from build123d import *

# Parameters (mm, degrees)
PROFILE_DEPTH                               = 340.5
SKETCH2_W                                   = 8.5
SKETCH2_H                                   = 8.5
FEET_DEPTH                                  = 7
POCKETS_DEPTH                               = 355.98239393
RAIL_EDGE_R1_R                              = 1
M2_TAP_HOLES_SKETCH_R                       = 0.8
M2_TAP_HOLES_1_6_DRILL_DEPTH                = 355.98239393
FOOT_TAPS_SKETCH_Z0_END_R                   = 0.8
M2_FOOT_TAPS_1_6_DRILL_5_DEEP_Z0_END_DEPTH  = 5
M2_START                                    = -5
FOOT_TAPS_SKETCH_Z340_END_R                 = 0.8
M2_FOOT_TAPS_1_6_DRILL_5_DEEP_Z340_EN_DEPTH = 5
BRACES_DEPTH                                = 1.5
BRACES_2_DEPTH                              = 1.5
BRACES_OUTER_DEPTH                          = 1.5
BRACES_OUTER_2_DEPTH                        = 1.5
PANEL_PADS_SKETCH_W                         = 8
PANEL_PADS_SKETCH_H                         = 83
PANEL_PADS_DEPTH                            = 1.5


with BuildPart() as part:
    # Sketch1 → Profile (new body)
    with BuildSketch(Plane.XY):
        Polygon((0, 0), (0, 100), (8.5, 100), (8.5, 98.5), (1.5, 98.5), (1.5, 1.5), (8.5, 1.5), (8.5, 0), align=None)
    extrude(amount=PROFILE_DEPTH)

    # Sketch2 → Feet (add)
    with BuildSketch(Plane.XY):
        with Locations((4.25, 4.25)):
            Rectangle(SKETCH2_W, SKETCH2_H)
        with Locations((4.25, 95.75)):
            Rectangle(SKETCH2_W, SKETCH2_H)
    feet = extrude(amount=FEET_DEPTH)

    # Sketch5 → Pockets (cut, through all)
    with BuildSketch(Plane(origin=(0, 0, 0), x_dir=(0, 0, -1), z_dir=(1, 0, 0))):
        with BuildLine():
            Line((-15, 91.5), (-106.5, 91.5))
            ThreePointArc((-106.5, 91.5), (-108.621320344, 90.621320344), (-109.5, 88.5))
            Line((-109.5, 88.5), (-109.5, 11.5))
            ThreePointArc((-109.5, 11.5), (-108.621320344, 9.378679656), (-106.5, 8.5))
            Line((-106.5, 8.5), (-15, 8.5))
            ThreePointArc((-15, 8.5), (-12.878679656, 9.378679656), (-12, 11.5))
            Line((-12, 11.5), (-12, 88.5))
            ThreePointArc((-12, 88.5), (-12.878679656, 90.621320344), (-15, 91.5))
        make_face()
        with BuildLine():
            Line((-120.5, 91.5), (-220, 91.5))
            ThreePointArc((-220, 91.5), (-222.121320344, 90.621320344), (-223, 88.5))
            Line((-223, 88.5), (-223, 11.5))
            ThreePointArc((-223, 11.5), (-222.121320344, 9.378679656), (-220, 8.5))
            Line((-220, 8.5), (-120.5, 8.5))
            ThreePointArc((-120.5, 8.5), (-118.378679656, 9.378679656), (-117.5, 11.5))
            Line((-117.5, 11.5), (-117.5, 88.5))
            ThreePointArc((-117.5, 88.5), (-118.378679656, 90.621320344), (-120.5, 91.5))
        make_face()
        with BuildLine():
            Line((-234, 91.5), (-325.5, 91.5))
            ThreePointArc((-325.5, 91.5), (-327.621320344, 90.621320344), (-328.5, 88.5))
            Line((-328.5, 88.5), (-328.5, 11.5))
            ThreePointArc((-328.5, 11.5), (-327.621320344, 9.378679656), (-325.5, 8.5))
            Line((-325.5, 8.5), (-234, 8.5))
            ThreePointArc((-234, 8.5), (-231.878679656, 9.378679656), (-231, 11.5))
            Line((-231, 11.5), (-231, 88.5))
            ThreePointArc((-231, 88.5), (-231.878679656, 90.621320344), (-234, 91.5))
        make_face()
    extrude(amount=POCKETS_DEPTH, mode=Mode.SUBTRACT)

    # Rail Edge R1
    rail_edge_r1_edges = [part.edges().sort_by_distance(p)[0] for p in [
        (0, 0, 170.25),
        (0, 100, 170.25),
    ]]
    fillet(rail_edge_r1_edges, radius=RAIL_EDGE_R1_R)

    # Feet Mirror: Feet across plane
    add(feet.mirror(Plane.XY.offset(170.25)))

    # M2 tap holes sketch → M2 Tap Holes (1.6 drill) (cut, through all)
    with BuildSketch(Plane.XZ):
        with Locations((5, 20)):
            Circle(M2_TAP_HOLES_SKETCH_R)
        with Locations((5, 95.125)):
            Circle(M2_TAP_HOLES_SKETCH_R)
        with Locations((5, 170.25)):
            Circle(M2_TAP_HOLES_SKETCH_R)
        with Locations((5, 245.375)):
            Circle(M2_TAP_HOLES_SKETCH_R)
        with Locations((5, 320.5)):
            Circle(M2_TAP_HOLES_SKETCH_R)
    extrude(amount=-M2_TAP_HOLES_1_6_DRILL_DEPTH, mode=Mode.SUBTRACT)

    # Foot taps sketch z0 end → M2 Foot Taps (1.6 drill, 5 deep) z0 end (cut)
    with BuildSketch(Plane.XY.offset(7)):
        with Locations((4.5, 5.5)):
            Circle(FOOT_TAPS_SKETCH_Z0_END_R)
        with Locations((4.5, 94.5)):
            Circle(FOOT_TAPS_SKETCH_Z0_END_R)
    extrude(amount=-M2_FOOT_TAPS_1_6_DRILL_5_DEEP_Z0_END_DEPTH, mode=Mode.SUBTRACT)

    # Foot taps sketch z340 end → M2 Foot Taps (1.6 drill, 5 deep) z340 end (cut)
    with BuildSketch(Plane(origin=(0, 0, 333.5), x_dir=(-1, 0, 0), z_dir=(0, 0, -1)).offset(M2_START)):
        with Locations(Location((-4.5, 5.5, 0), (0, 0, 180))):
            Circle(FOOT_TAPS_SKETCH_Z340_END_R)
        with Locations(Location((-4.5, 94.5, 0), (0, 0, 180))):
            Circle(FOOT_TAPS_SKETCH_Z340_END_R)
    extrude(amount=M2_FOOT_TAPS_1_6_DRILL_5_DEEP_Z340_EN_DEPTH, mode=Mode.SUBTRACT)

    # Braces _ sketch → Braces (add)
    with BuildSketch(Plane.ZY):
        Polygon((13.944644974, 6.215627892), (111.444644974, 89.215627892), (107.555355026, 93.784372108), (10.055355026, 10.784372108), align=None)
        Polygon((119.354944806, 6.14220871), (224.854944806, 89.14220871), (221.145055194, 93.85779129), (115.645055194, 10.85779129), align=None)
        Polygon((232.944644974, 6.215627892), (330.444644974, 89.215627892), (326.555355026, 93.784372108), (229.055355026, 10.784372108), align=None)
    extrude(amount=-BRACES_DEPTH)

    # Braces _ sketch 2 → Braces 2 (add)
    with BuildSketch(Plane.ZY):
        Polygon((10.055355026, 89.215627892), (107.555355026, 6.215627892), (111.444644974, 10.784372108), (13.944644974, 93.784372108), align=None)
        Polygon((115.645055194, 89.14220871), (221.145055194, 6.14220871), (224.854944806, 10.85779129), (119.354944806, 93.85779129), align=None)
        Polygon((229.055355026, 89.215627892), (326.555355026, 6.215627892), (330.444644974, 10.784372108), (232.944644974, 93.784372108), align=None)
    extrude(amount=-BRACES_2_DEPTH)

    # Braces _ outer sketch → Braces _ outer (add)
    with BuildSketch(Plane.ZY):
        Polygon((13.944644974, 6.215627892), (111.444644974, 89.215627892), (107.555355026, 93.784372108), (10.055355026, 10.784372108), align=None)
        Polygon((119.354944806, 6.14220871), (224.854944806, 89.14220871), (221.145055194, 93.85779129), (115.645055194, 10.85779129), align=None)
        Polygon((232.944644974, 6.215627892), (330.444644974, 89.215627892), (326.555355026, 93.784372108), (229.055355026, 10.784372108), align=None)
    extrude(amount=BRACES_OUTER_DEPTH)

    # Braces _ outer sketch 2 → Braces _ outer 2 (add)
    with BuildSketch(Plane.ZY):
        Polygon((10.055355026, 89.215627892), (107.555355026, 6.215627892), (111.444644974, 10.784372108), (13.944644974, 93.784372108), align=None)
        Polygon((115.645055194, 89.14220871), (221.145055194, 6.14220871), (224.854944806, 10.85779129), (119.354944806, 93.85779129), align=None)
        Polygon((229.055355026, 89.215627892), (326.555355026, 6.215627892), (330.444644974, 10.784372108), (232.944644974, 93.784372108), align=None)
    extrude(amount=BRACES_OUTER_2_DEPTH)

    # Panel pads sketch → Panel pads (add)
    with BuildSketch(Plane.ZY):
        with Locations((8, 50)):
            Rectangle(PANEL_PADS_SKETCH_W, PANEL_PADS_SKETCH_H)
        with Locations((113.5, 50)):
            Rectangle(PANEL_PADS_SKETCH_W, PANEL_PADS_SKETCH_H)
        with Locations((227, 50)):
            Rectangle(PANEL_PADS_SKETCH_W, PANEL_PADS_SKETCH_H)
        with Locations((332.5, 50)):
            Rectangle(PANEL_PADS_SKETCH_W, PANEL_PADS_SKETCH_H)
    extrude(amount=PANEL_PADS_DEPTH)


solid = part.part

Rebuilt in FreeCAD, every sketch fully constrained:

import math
import FreeCAD as App
import Part
import Sketcher

V = App.Vector
Q = App.Units.Quantity


def edges_at(feature, points):
    """Names of the edges that pass closest to the given points."""
    edges = feature.Shape.Edges
    near = lambda p: min(range(len(edges)), key=lambda i: edges[i].distToShape(Part.Vertex(*p))[0])
    return sorted({f"Edge{near(p) + 1}" for p in points})

doc = App.newDocument("Part")
body = doc.addObject("PartDesign::Body", "Body")

sketch1 = body.newObject("Sketcher::SketchObject", "Sketch")
sketch1.AttachmentSupport = (doc.getObject("XY_Plane"), [""])
sketch1.MapMode = "FlatFace"
sketch1.addGeometry(Part.LineSegment(V(0, 100, 0), V(0, 0, 0)), False)
sketch1.addGeometry(Part.LineSegment(V(0, 0, 0), V(8.5, 0, 0)), False)
sketch1.addGeometry(Part.LineSegment(V(8.5, 0, 0), V(8.5, 1.5, 0)), False)
sketch1.addGeometry(Part.LineSegment(V(8.5, 1.5, 0), V(1.5, 1.5, 0)), False)
sketch1.addGeometry(Part.LineSegment(V(1.5, 1.5, 0), V(1.5, 98.5, 0)), False)
sketch1.addGeometry(Part.LineSegment(V(1.5, 98.5, 0), V(8.5, 98.5, 0)), False)
sketch1.addGeometry(Part.LineSegment(V(8.5, 98.5, 0), V(8.5, 100, 0)), False)
sketch1.addGeometry(Part.LineSegment(V(8.5, 100, 0), V(0, 100, 0)), False)
sketch1.addConstraint(Sketcher.Constraint("Coincident", 0, 2, 1, 1))
sketch1.addConstraint(Sketcher.Constraint("Coincident", 1, 2, 2, 1))
sketch1.addConstraint(Sketcher.Constraint("Coincident", 2, 2, 3, 1))
sketch1.addConstraint(Sketcher.Constraint("Coincident", 3, 2, 4, 1))
sketch1.addConstraint(Sketcher.Constraint("Coincident", 4, 2, 5, 1))
sketch1.addConstraint(Sketcher.Constraint("Coincident", 5, 2, 6, 1))
sketch1.addConstraint(Sketcher.Constraint("Coincident", 6, 2, 7, 1))
sketch1.addConstraint(Sketcher.Constraint("Coincident", 7, 2, 0, 1))
sketch1.addConstraint(Sketcher.Constraint("Vertical", 0))
sketch1.addConstraint(Sketcher.Constraint("Horizontal", 1))
sketch1.addConstraint(Sketcher.Constraint("Vertical", 2))
sketch1.addConstraint(Sketcher.Constraint("Horizontal", 3))
sketch1.addConstraint(Sketcher.Constraint("Vertical", 4))
sketch1.addConstraint(Sketcher.Constraint("Horizontal", 5))
sketch1.addConstraint(Sketcher.Constraint("Vertical", 6))
sketch1.addConstraint(Sketcher.Constraint("Horizontal", 7))
sketch1.addConstraint(Sketcher.Constraint("Coincident", 0, 2, -1, 1))
sketch1.addConstraint(Sketcher.Constraint("Vertical", 2, 2, 5, 2))
sketch1.addConstraint(Sketcher.Constraint("Equal", 2, 6))
sketch1.addConstraint(Sketcher.Constraint("DistanceX", 3, 2, 3, 1, Q("7 mm")))
sketch1.addConstraint(Sketcher.Constraint("DistanceY", 0, 2, 0, 1, Q("100 mm")))
sketch1.addConstraint(Sketcher.Constraint("DistanceY", 4, 1, 4, 2, Q("97 mm")))
sketch1.addConstraint(Sketcher.Constraint("DistanceX", 1, 1, 1, 2, Q("8.5 mm")))
pad1 = body.newObject("PartDesign::Pad", "Pad")
pad1.Profile = sketch1
pad1.Length = 340.5

sketch2 = body.newObject("Sketcher::SketchObject", "Sketch001")
sketch2.AttachmentSupport = (doc.getObject("XY_Plane"), [""])
sketch2.MapMode = "FlatFace"
sketch2.addGeometry(Part.LineSegment(V(0, 8, 0), V(0, 0, 0)), False)
sketch2.addGeometry(Part.LineSegment(V(0, 0, 0), V(8, 0, 0)), False)
sketch2.addGeometry(Part.LineSegment(V(8, 0, 0), V(8, 8, 0)), False)
sketch2.addGeometry(Part.LineSegment(V(8, 8, 0), V(0, 8, 0)), False)
sketch2.addGeometry(Part.LineSegment(V(0, 100, 0), V(0, 92, 0)), False)
sketch2.addGeometry(Part.LineSegment(V(0, 92, 0), V(8, 92, 0)), False)
sketch2.addGeometry(Part.LineSegment(V(8, 92, 0), V(8, 100, 0)), False)
sketch2.addGeometry(Part.LineSegment(V(8, 100, 0), V(0, 100, 0)), False)
sketch2.addConstraint(Sketcher.Constraint("Coincident", 0, 2, 1, 1))
sketch2.addConstraint(Sketcher.Constraint("Coincident", 1, 2, 2, 1))
sketch2.addConstraint(Sketcher.Constraint("Coincident", 2, 2, 3, 1))
sketch2.addConstraint(Sketcher.Constraint("Coincident", 3, 2, 0, 1))
sketch2.addConstraint(Sketcher.Constraint("Coincident", 4, 2, 5, 1))
sketch2.addConstraint(Sketcher.Constraint("Coincident", 5, 2, 6, 1))
sketch2.addConstraint(Sketcher.Constraint("Coincident", 6, 2, 7, 1))
sketch2.addConstraint(Sketcher.Constraint("Coincident", 7, 2, 4, 1))
sketch2.addConstraint(Sketcher.Constraint("Vertical", 0))
sketch2.addConstraint(Sketcher.Constraint("Horizontal", 1))
sketch2.addConstraint(Sketcher.Constraint("Vertical", 2))
sketch2.addConstraint(Sketcher.Constraint("Horizontal", 3))
sketch2.addConstraint(Sketcher.Constraint("Vertical", 4))
sketch2.addConstraint(Sketcher.Constraint("Horizontal", 5))
sketch2.addConstraint(Sketcher.Constraint("Vertical", 6))
sketch2.addConstraint(Sketcher.Constraint("Horizontal", 7))
sketch2.addConstraint(Sketcher.Constraint("Coincident", 0, 2, -1, 1))
sketch2.addConstraint(Sketcher.Constraint("PointOnObject", 4, 2, -2))
sketch2.addConstraint(Sketcher.Constraint("Vertical", 2, 2, 5, 2))
sketch2.addConstraint(Sketcher.Constraint("Equal", 7, 0))
sketch2.addConstraint(Sketcher.Constraint("Equal", 2, 4))
sketch2.addConstraint(Sketcher.Constraint("DistanceX", 1, 1, 1, 2, Q("8.5 mm")))
sketch2.addConstraint(Sketcher.Constraint("DistanceY", -1, 1, 6, 2, Q("100 mm")))
pad2 = body.newObject("PartDesign::Pad", "Pad001")
pad2.Profile = sketch2
pad2.Length = 7

sketch3 = body.newObject("Sketcher::SketchObject", "Sketch002")
sketch3.AttachmentSupport = (doc.getObject("YZ_Plane"), [""])
sketch3.MapMode = "FlatFace"
sketch3.addGeometry(Part.LineSegment(V(91.5, 15, 0), V(91.5, 106.5, 0)), False)
sketch3.addGeometry(Part.ArcOfCircle(Part.Circle(V(88.5, 106.5, 0), V(0, 0, 1), 3), math.radians(0), math.radians(90)), False)
sketch3.addGeometry(Part.LineSegment(V(88.5, 109.5, 0), V(11.5, 109.5, 0)), False)
sketch3.addGeometry(Part.ArcOfCircle(Part.Circle(V(11.5, 106.5, 0), V(0, 0, 1), 3), math.radians(90), math.radians(180)), False)
sketch3.addGeometry(Part.LineSegment(V(8.5, 106.5, 0), V(8.5, 15, 0)), False)
sketch3.addGeometry(Part.ArcOfCircle(Part.Circle(V(11.5, 15, 0), V(0, 0, 1), 3), math.radians(180), math.radians(270)), False)
sketch3.addGeometry(Part.LineSegment(V(11.5, 12, 0), V(88.5, 12, 0)), False)
sketch3.addGeometry(Part.ArcOfCircle(Part.Circle(V(88.5, 15, 0), V(0, 0, 1), 3), math.radians(-90), math.radians(0)), False)
sketch3.addGeometry(Part.LineSegment(V(91.5, 120.5, 0), V(91.5, 220, 0)), False)
sketch3.addGeometry(Part.ArcOfCircle(Part.Circle(V(88.5, 220, 0), V(0, 0, 1), 3), math.radians(0), math.radians(90)), False)
sketch3.addGeometry(Part.LineSegment(V(88.5, 223, 0), V(11.5, 223, 0)), False)
sketch3.addGeometry(Part.ArcOfCircle(Part.Circle(V(11.5, 220, 0), V(0, 0, 1), 3), math.radians(90), math.radians(180)), False)
sketch3.addGeometry(Part.LineSegment(V(8.5, 220, 0), V(8.5, 120.5, 0)), False)
sketch3.addGeometry(Part.ArcOfCircle(Part.Circle(V(11.5, 120.5, 0), V(0, 0, 1), 3), math.radians(180), math.radians(270)), False)
sketch3.addGeometry(Part.LineSegment(V(11.5, 117.5, 0), V(88.5, 117.5, 0)), False)
sketch3.addGeometry(Part.ArcOfCircle(Part.Circle(V(88.5, 120.5, 0), V(0, 0, 1), 3), math.radians(-90), math.radians(0)), False)
sketch3.addGeometry(Part.LineSegment(V(91.5, 234, 0), V(91.5, 325.5, 0)), False)
sketch3.addGeometry(Part.ArcOfCircle(Part.Circle(V(88.5, 325.5, 0), V(0, 0, 1), 3), math.radians(0), math.radians(90)), False)
sketch3.addGeometry(Part.LineSegment(V(88.5, 328.5, 0), V(11.5, 328.5, 0)), False)
sketch3.addGeometry(Part.ArcOfCircle(Part.Circle(V(11.5, 325.5, 0), V(0, 0, 1), 3), math.radians(90), math.radians(180)), False)
sketch3.addGeometry(Part.LineSegment(V(8.5, 325.5, 0), V(8.5, 234, 0)), False)
sketch3.addGeometry(Part.ArcOfCircle(Part.Circle(V(11.5, 234, 0), V(0, 0, 1), 3), math.radians(180), math.radians(270)), False)
sketch3.addGeometry(Part.LineSegment(V(11.5, 231, 0), V(88.5, 231, 0)), False)
sketch3.addGeometry(Part.ArcOfCircle(Part.Circle(V(88.5, 234, 0), V(0, 0, 1), 3), math.radians(-90), math.radians(0)), False)
sketch3.addConstraint(Sketcher.Constraint("Tangent", 0, 2, 1, 1))
sketch3.addConstraint(Sketcher.Constraint("Tangent", 1, 2, 2, 1))
sketch3.addConstraint(Sketcher.Constraint("Tangent", 2, 2, 3, 1))
sketch3.addConstraint(Sketcher.Constraint("Tangent", 3, 2, 4, 1))
sketch3.addConstraint(Sketcher.Constraint("Tangent", 4, 2, 5, 1))
sketch3.addConstraint(Sketcher.Constraint("Tangent", 5, 2, 6, 1))
sketch3.addConstraint(Sketcher.Constraint("Tangent", 6, 2, 7, 1))
sketch3.addConstraint(Sketcher.Constraint("Tangent", 7, 2, 0, 1))
sketch3.addConstraint(Sketcher.Constraint("Tangent", 8, 2, 9, 1))
sketch3.addConstraint(Sketcher.Constraint("Tangent", 9, 2, 10, 1))
sketch3.addConstraint(Sketcher.Constraint("Tangent", 10, 2, 11, 1))
sketch3.addConstraint(Sketcher.Constraint("Tangent", 11, 2, 12, 1))
sketch3.addConstraint(Sketcher.Constraint("Tangent", 12, 2, 13, 1))
sketch3.addConstraint(Sketcher.Constraint("Tangent", 13, 2, 14, 1))
sketch3.addConstraint(Sketcher.Constraint("Tangent", 14, 2, 15, 1))
sketch3.addConstraint(Sketcher.Constraint("Tangent", 15, 2, 8, 1))
sketch3.addConstraint(Sketcher.Constraint("Tangent", 16, 2, 17, 1))
sketch3.addConstraint(Sketcher.Constraint("Tangent", 17, 2, 18, 1))
sketch3.addConstraint(Sketcher.Constraint("Tangent", 18, 2, 19, 1))
sketch3.addConstraint(Sketcher.Constraint("Tangent", 19, 2, 20, 1))
sketch3.addConstraint(Sketcher.Constraint("Tangent", 20, 2, 21, 1))
sketch3.addConstraint(Sketcher.Constraint("Tangent", 21, 2, 22, 1))
sketch3.addConstraint(Sketcher.Constraint("Tangent", 22, 2, 23, 1))
sketch3.addConstraint(Sketcher.Constraint("Tangent", 23, 2, 16, 1))
sketch3.addConstraint(Sketcher.Constraint("Vertical", 0))
sketch3.addConstraint(Sketcher.Constraint("Horizontal", 2))
sketch3.addConstraint(Sketcher.Constraint("Vertical", 4))
sketch3.addConstraint(Sketcher.Constraint("Horizontal", 6))
sketch3.addConstraint(Sketcher.Constraint("Vertical", 8))
sketch3.addConstraint(Sketcher.Constraint("Horizontal", 10))
sketch3.addConstraint(Sketcher.Constraint("Vertical", 12))
sketch3.addConstraint(Sketcher.Constraint("Horizontal", 14))
sketch3.addConstraint(Sketcher.Constraint("Vertical", 16))
sketch3.addConstraint(Sketcher.Constraint("Horizontal", 18))
sketch3.addConstraint(Sketcher.Constraint("Vertical", 20))
sketch3.addConstraint(Sketcher.Constraint("Horizontal", 22))
sketch3.addConstraint(Sketcher.Constraint("Equal", 1, 3))
sketch3.addConstraint(Sketcher.Constraint("Equal", 3, 5))
sketch3.addConstraint(Sketcher.Constraint("Equal", 5, 7))
sketch3.addConstraint(Sketcher.Constraint("Equal", 7, 9))
sketch3.addConstraint(Sketcher.Constraint("Equal", 9, 11))
sketch3.addConstraint(Sketcher.Constraint("Equal", 11, 13))
sketch3.addConstraint(Sketcher.Constraint("Equal", 13, 15))
sketch3.addConstraint(Sketcher.Constraint("Equal", 15, 17))
sketch3.addConstraint(Sketcher.Constraint("Equal", 17, 19))
sketch3.addConstraint(Sketcher.Constraint("Equal", 19, 21))
sketch3.addConstraint(Sketcher.Constraint("Equal", 21, 23))
sketch3.addConstraint(Sketcher.Constraint("Vertical", 7, 3, 9, 3))
sketch3.addConstraint(Sketcher.Constraint("Vertical", 5, 3, 11, 3))
sketch3.addConstraint(Sketcher.Constraint("Vertical", 15, 3, 17, 3))
sketch3.addConstraint(Sketcher.Constraint("Vertical", 13, 3, 19, 3))
sketch3.addConstraint(Sketcher.Constraint("Equal", 4, 16))
sketch3.addConstraint(Sketcher.Constraint("Radius", 1, Q("3 mm")))
sketch3.addConstraint(Sketcher.Constraint("DistanceX", 2, 2, 2, 1, Q("77 mm")))
sketch3.addConstraint(Sketcher.Constraint("DistanceY", 0, 1, 0, 2, Q("91.5 mm")))
sketch3.addConstraint(Sketcher.Constraint("DistanceY", 8, 1, 8, 2, Q("99.5 mm")))
sketch3.addConstraint(Sketcher.Constraint("DistanceY", -1, 1, 5, 3, Q("15 mm")))
sketch3.addConstraint(Sketcher.Constraint("DistanceY", -1, 1, 9, 3, Q("220 mm")))
sketch3.addConstraint(Sketcher.Constraint("DistanceY", -1, 1, 21, 3, Q("234 mm")))
sketch3.addConstraint(Sketcher.Constraint("DistanceX", -1, 1, 1, 3, Q("88.5 mm")))
pocket1 = body.newObject("PartDesign::Pocket", "Pocket")
pocket1.Profile = sketch3
pocket1.Type = "ThroughAll"
pocket1.Reversed = True
doc.recompute()

fillet = body.newObject("PartDesign::Fillet", "Fillet")
fillet.Base = (pocket1, edges_at(pocket1, [(0, 0, 170.25), (0, 100, 170.25)]))
fillet.Radius = 1
doc.recompute()

datumplane = body.newObject("PartDesign::Plane", "DatumPlane")
datumplane.AttachmentSupport = (doc.getObject("XY_Plane"), [""])
datumplane.MapMode = "FlatFace"
datumplane.AttachmentOffset = App.Placement(V(0, 0, 170.25), App.Rotation())
mirrored = body.newObject("PartDesign::Mirrored", "Mirrored")
mirrored.Originals = [pad2]
mirrored.MirrorPlane = (datumplane, [""])
body.Tip = mirrored

sketch4 = body.newObject("Sketcher::SketchObject", "Sketch003")
sketch4.AttachmentSupport = (doc.getObject("XZ_Plane"), [""])
sketch4.MapMode = "FlatFace"
sketch4.addGeometry(Part.Circle(V(5, 20, 0), V(0, 0, 1), 0.8), False)
sketch4.addGeometry(Part.Circle(V(5, 95.1, 0), V(0, 0, 1), 0.8), False)
sketch4.addGeometry(Part.Circle(V(5, 170.2, 0), V(0, 0, 1), 0.8), False)
sketch4.addGeometry(Part.Circle(V(5, 245.4, 0), V(0, 0, 1), 0.8), False)
sketch4.addGeometry(Part.Circle(V(5, 320.5, 0), V(0, 0, 1), 0.8), False)
sketch4.addConstraint(Sketcher.Constraint("Equal", 0, 1))
sketch4.addConstraint(Sketcher.Constraint("Equal", 1, 2))
sketch4.addConstraint(Sketcher.Constraint("Equal", 2, 3))
sketch4.addConstraint(Sketcher.Constraint("Equal", 3, 4))
sketch4.addConstraint(Sketcher.Constraint("Vertical", 0, 3, 1, 3))
sketch4.addConstraint(Sketcher.Constraint("Vertical", 1, 3, 2, 3))
sketch4.addConstraint(Sketcher.Constraint("Vertical", 2, 3, 3, 3))
sketch4.addConstraint(Sketcher.Constraint("Vertical", 3, 3, 4, 3))
sketch4.addConstraint(Sketcher.Constraint("Diameter", 0, Q("1.6 mm")))
sketch4.addConstraint(Sketcher.Constraint("DistanceX", -1, 1, 0, 3, Q("5 mm")))
sketch4.addConstraint(Sketcher.Constraint("DistanceY", -1, 1, 0, 3, Q("20 mm")))
sketch4.addConstraint(Sketcher.Constraint("DistanceY", -1, 1, 4, 3, Q("320.5 mm")))
sketch4.addConstraint(Sketcher.Constraint("DistanceY", -1, 1, 2, 3, Q("170.25 mm")))
sketch4.addConstraint(Sketcher.Constraint("DistanceY", 1, 3, 3, 3, Q("150.25 mm")))
sketch4.addConstraint(Sketcher.Constraint("DistanceY", -1, 1, 1, 3, Q("95.125 mm")))
pocket2 = body.newObject("PartDesign::Pocket", "Pocket001")
pocket2.Profile = sketch4
pocket2.Type = "ThroughAll"

sketch5 = body.newObject("Sketcher::SketchObject", "Sketch004")
sketch5.AttachmentSupport = (doc.getObject("XY_Plane"), [""])
sketch5.MapMode = "FlatFace"
sketch5.AttachmentOffset = App.Placement(V(0, 0, 7), App.Rotation())
sketch5.addGeometry(Part.Circle(V(4.5, 5.5, 0), V(0, 0, 1), 0.8), False)
sketch5.addGeometry(Part.Circle(V(4.5, 94.5, 0), V(0, 0, 1), 0.8), False)
sketch5.addConstraint(Sketcher.Constraint("Equal", 0, 1))
sketch5.addConstraint(Sketcher.Constraint("Vertical", 0, 3, 1, 3))
sketch5.addConstraint(Sketcher.Constraint("Diameter", 0, Q("1.6 mm")))
sketch5.addConstraint(Sketcher.Constraint("DistanceY", 0, 3, 1, 3, Q("89 mm")))
sketch5.addConstraint(Sketcher.Constraint("DistanceX", -1, 1, 0, 3, Q("4.5 mm")))
sketch5.addConstraint(Sketcher.Constraint("DistanceY", -1, 1, 0, 3, Q("5.5 mm")))
pocket3 = body.newObject("PartDesign::Pocket", "Pocket002")
pocket3.Profile = sketch5
pocket3.Length = 5

sketch6 = body.newObject("Sketcher::SketchObject", "Sketch005")
sketch6.AttachmentSupport = (doc.getObject("XY_Plane"), [""])
sketch6.MapMode = "FlatFace"
sketch6.AttachmentOffset = App.Placement(V(0, 0, 338.5), App.Rotation())
sketch6.addGeometry(Part.Circle(V(4.5, 5.5, 0), V(0, 0, 1), 0.8), False)
sketch6.addGeometry(Part.Circle(V(4.5, 94.5, 0), V(0, 0, 1), 0.8), False)
sketch6.addConstraint(Sketcher.Constraint("Equal", 0, 1))
sketch6.addConstraint(Sketcher.Constraint("Vertical", 0, 3, 1, 3))
sketch6.addConstraint(Sketcher.Constraint("Diameter", 0, Q("1.6 mm")))
sketch6.addConstraint(Sketcher.Constraint("DistanceY", 0, 3, 1, 3, Q("89 mm")))
sketch6.addConstraint(Sketcher.Constraint("DistanceX", -1, 1, 0, 3, Q("4.5 mm")))
sketch6.addConstraint(Sketcher.Constraint("DistanceY", -1, 1, 0, 3, Q("5.5 mm")))
pocket4 = body.newObject("PartDesign::Pocket", "Pocket003")
pocket4.Profile = sketch6
pocket4.Length = 5

sketch7 = body.newObject("Sketcher::SketchObject", "Sketch006")
sketch7.AttachmentSupport = (doc.getObject("YZ_Plane"), [""])
sketch7.MapMode = "FlatFace"
sketch7.addGeometry(Part.LineSegment(V(6, 14, 0), V(89, 111, 0)), False)
sketch7.addGeometry(Part.LineSegment(V(89, 111, 0), V(94, 108, 0)), False)
sketch7.addGeometry(Part.LineSegment(V(94, 108, 0), V(11, 10, 0)), False)
sketch7.addGeometry(Part.LineSegment(V(11, 10, 0), V(6, 14, 0)), False)
sketch7.addGeometry(Part.LineSegment(V(6, 119, 0), V(89, 225, 0)), False)
sketch7.addGeometry(Part.LineSegment(V(89, 225, 0), V(94, 221, 0)), False)
sketch7.addGeometry(Part.LineSegment(V(94, 221, 0), V(11, 116, 0)), False)
sketch7.addGeometry(Part.LineSegment(V(11, 116, 0), V(6, 119, 0)), False)
sketch7.addGeometry(Part.LineSegment(V(6, 233, 0), V(89, 330, 0)), False)
sketch7.addGeometry(Part.LineSegment(V(89, 330, 0), V(94, 327, 0)), False)
sketch7.addGeometry(Part.LineSegment(V(94, 327, 0), V(11, 229, 0)), False)
sketch7.addGeometry(Part.LineSegment(V(11, 229, 0), V(6, 233, 0)), False)
sketch7.addConstraint(Sketcher.Constraint("Coincident", 0, 2, 1, 1))
sketch7.addConstraint(Sketcher.Constraint("Coincident", 1, 2, 2, 1))
sketch7.addConstraint(Sketcher.Constraint("Coincident", 2, 2, 3, 1))
sketch7.addConstraint(Sketcher.Constraint("Coincident", 3, 2, 0, 1))
sketch7.addConstraint(Sketcher.Constraint("Coincident", 4, 2, 5, 1))
sketch7.addConstraint(Sketcher.Constraint("Coincident", 5, 2, 6, 1))
sketch7.addConstraint(Sketcher.Constraint("Coincident", 6, 2, 7, 1))
sketch7.addConstraint(Sketcher.Constraint("Coincident", 7, 2, 4, 1))
sketch7.addConstraint(Sketcher.Constraint("Coincident", 8, 2, 9, 1))
sketch7.addConstraint(Sketcher.Constraint("Coincident", 9, 2, 10, 1))
sketch7.addConstraint(Sketcher.Constraint("Coincident", 10, 2, 11, 1))
sketch7.addConstraint(Sketcher.Constraint("Coincident", 11, 2, 8, 1))
sketch7.addConstraint(Sketcher.Constraint("Perpendicular", 0, 1))
sketch7.addConstraint(Sketcher.Constraint("Perpendicular", 1, 2))
sketch7.addConstraint(Sketcher.Constraint("Perpendicular", 2, 3))
sketch7.addConstraint(Sketcher.Constraint("Perpendicular", 4, 5))
sketch7.addConstraint(Sketcher.Constraint("Perpendicular", 5, 6))
sketch7.addConstraint(Sketcher.Constraint("Perpendicular", 6, 7))
sketch7.addConstraint(Sketcher.Constraint("Perpendicular", 3, 8))
sketch7.addConstraint(Sketcher.Constraint("Perpendicular", 8, 9))
sketch7.addConstraint(Sketcher.Constraint("Perpendicular", 9, 10))
sketch7.addConstraint(Sketcher.Constraint("Perpendicular", 10, 11))
sketch7.addConstraint(Sketcher.Constraint("Vertical", 0, 2, 8, 2))
sketch7.addConstraint(Sketcher.Constraint("Vertical", 1, 2, 9, 2))
sketch7.addConstraint(Sketcher.Constraint("Vertical", 2, 2, 10, 2))
sketch7.addConstraint(Sketcher.Constraint("Equal", 3, 5))
sketch7.addConstraint(Sketcher.Constraint("Distance", 1, Q("6 mm")))
sketch7.addConstraint(Sketcher.Constraint("DistanceX", 2, 2, 1, 2, Q("83 mm")))
sketch7.addConstraint(Sketcher.Constraint("DistanceX", 6, 2, 5, 2, Q("83 mm")))
sketch7.addConstraint(Sketcher.Constraint("DistanceY", 0, 2, 8, 2, Q("219 mm")))
sketch7.addConstraint(Sketcher.Constraint("DistanceY", 2, 2, 1, 2, Q("97.5 mm")))
sketch7.addConstraint(Sketcher.Constraint("DistanceY", 6, 2, 5, 2, Q("105.5 mm")))
sketch7.addConstraint(Sketcher.Constraint("DistanceY", 0, 2, 4, 2, Q("113.4103 mm")))
sketch7.addConstraint(Sketcher.Constraint("DistanceX", -1, 1, 4, 2, Q("89.142209 mm")))
sketch7.addConstraint(Sketcher.Constraint("DistanceX", 4, 2, 0, 2, Q("0.073419 mm")))
sketch7.addConstraint(Sketcher.Constraint("DistanceY", -1, 1, 0, 2, Q("111.444645 mm")))
pad3 = body.newObject("PartDesign::Pad", "Pad002")
pad3.Profile = sketch7
pad3.Length = 1.5

sketch8 = body.newObject("Sketcher::SketchObject", "Sketch007")
sketch8.AttachmentSupport = (doc.getObject("YZ_Plane"), [""])
sketch8.MapMode = "FlatFace"
sketch8.addGeometry(Part.LineSegment(V(89, 10, 0), V(6, 108, 0)), False)
sketch8.addGeometry(Part.LineSegment(V(6, 108, 0), V(11, 111, 0)), False)
sketch8.addGeometry(Part.LineSegment(V(11, 111, 0), V(94, 14, 0)), False)
sketch8.addGeometry(Part.LineSegment(V(94, 14, 0), V(89, 10, 0)), False)
sketch8.addGeometry(Part.LineSegment(V(89, 116, 0), V(6, 221, 0)), False)
sketch8.addGeometry(Part.LineSegment(V(6, 221, 0), V(11, 225, 0)), False)
sketch8.addGeometry(Part.LineSegment(V(11, 225, 0), V(94, 119, 0)), False)
sketch8.addGeometry(Part.LineSegment(V(94, 119, 0), V(89, 116, 0)), False)
sketch8.addGeometry(Part.LineSegment(V(89, 229, 0), V(6, 327, 0)), False)
sketch8.addGeometry(Part.LineSegment(V(6, 327, 0), V(11, 330, 0)), False)
sketch8.addGeometry(Part.LineSegment(V(11, 330, 0), V(94, 233, 0)), False)
sketch8.addGeometry(Part.LineSegment(V(94, 233, 0), V(89, 229, 0)), False)
sketch8.addConstraint(Sketcher.Constraint("Coincident", 0, 2, 1, 1))
sketch8.addConstraint(Sketcher.Constraint("Coincident", 1, 2, 2, 1))
sketch8.addConstraint(Sketcher.Constraint("Coincident", 2, 2, 3, 1))
sketch8.addConstraint(Sketcher.Constraint("Coincident", 3, 2, 0, 1))
sketch8.addConstraint(Sketcher.Constraint("Coincident", 4, 2, 5, 1))
sketch8.addConstraint(Sketcher.Constraint("Coincident", 5, 2, 6, 1))
sketch8.addConstraint(Sketcher.Constraint("Coincident", 6, 2, 7, 1))
sketch8.addConstraint(Sketcher.Constraint("Coincident", 7, 2, 4, 1))
sketch8.addConstraint(Sketcher.Constraint("Coincident", 8, 2, 9, 1))
sketch8.addConstraint(Sketcher.Constraint("Coincident", 9, 2, 10, 1))
sketch8.addConstraint(Sketcher.Constraint("Coincident", 10, 2, 11, 1))
sketch8.addConstraint(Sketcher.Constraint("Coincident", 11, 2, 8, 1))
sketch8.addConstraint(Sketcher.Constraint("Perpendicular", 0, 1))
sketch8.addConstraint(Sketcher.Constraint("Perpendicular", 1, 2))
sketch8.addConstraint(Sketcher.Constraint("Perpendicular", 2, 3))
sketch8.addConstraint(Sketcher.Constraint("Perpendicular", 4, 5))
sketch8.addConstraint(Sketcher.Constraint("Perpendicular", 5, 6))
sketch8.addConstraint(Sketcher.Constraint("Perpendicular", 6, 7))
sketch8.addConstraint(Sketcher.Constraint("Perpendicular", 3, 8))
sketch8.addConstraint(Sketcher.Constraint("Perpendicular", 8, 9))
sketch8.addConstraint(Sketcher.Constraint("Perpendicular", 9, 10))
sketch8.addConstraint(Sketcher.Constraint("Perpendicular", 10, 11))
sketch8.addConstraint(Sketcher.Constraint("Vertical", 0, 2, 8, 2))
sketch8.addConstraint(Sketcher.Constraint("Vertical", 1, 2, 9, 2))
sketch8.addConstraint(Sketcher.Constraint("Vertical", 2, 2, 10, 2))
sketch8.addConstraint(Sketcher.Constraint("Equal", 3, 5))
sketch8.addConstraint(Sketcher.Constraint("Distance", 1, Q("6 mm")))
sketch8.addConstraint(Sketcher.Constraint("DistanceX", 1, 2, 2, 2, Q("83 mm")))
sketch8.addConstraint(Sketcher.Constraint("DistanceX", 5, 2, 6, 2, Q("83 mm")))
sketch8.addConstraint(Sketcher.Constraint("DistanceY", 0, 2, 8, 2, Q("219 mm")))
sketch8.addConstraint(Sketcher.Constraint("DistanceY", 2, 2, 1, 2, Q("97.5 mm")))
sketch8.addConstraint(Sketcher.Constraint("DistanceY", 6, 2, 5, 2, Q("105.5 mm")))
sketch8.addConstraint(Sketcher.Constraint("DistanceY", 0, 2, 4, 2, Q("113.5897 mm")))
sketch8.addConstraint(Sketcher.Constraint("DistanceX", -1, 1, 4, 2, Q("6.142209 mm")))
sketch8.addConstraint(Sketcher.Constraint("DistanceX", 4, 2, 0, 2, Q("0.073419 mm")))
sketch8.addConstraint(Sketcher.Constraint("DistanceY", -1, 1, 0, 2, Q("107.555355 mm")))
pad4 = body.newObject("PartDesign::Pad", "Pad003")
pad4.Profile = sketch8
pad4.Length = 1.5

sketch9 = body.newObject("Sketcher::SketchObject", "Sketch008")
sketch9.AttachmentSupport = (doc.getObject("YZ_Plane"), [""])
sketch9.MapMode = "FlatFace"
sketch9.addGeometry(Part.LineSegment(V(6, 14, 0), V(89, 111, 0)), False)
sketch9.addGeometry(Part.LineSegment(V(89, 111, 0), V(94, 108, 0)), False)
sketch9.addGeometry(Part.LineSegment(V(94, 108, 0), V(11, 10, 0)), False)
sketch9.addGeometry(Part.LineSegment(V(11, 10, 0), V(6, 14, 0)), False)
sketch9.addGeometry(Part.LineSegment(V(6, 119, 0), V(89, 225, 0)), False)
sketch9.addGeometry(Part.LineSegment(V(89, 225, 0), V(94, 221, 0)), False)
sketch9.addGeometry(Part.LineSegment(V(94, 221, 0), V(11, 116, 0)), False)
sketch9.addGeometry(Part.LineSegment(V(11, 116, 0), V(6, 119, 0)), False)
sketch9.addGeometry(Part.LineSegment(V(6, 233, 0), V(89, 330, 0)), False)
sketch9.addGeometry(Part.LineSegment(V(89, 330, 0), V(94, 327, 0)), False)
sketch9.addGeometry(Part.LineSegment(V(94, 327, 0), V(11, 229, 0)), False)
sketch9.addGeometry(Part.LineSegment(V(11, 229, 0), V(6, 233, 0)), False)
sketch9.addConstraint(Sketcher.Constraint("Coincident", 0, 2, 1, 1))
sketch9.addConstraint(Sketcher.Constraint("Coincident", 1, 2, 2, 1))
sketch9.addConstraint(Sketcher.Constraint("Coincident", 2, 2, 3, 1))
sketch9.addConstraint(Sketcher.Constraint("Coincident", 3, 2, 0, 1))
sketch9.addConstraint(Sketcher.Constraint("Coincident", 4, 2, 5, 1))
sketch9.addConstraint(Sketcher.Constraint("Coincident", 5, 2, 6, 1))
sketch9.addConstraint(Sketcher.Constraint("Coincident", 6, 2, 7, 1))
sketch9.addConstraint(Sketcher.Constraint("Coincident", 7, 2, 4, 1))
sketch9.addConstraint(Sketcher.Constraint("Coincident", 8, 2, 9, 1))
sketch9.addConstraint(Sketcher.Constraint("Coincident", 9, 2, 10, 1))
sketch9.addConstraint(Sketcher.Constraint("Coincident", 10, 2, 11, 1))
sketch9.addConstraint(Sketcher.Constraint("Coincident", 11, 2, 8, 1))
sketch9.addConstraint(Sketcher.Constraint("Perpendicular", 0, 1))
sketch9.addConstraint(Sketcher.Constraint("Perpendicular", 1, 2))
sketch9.addConstraint(Sketcher.Constraint("Perpendicular", 2, 3))
sketch9.addConstraint(Sketcher.Constraint("Perpendicular", 4, 5))
sketch9.addConstraint(Sketcher.Constraint("Perpendicular", 5, 6))
sketch9.addConstraint(Sketcher.Constraint("Perpendicular", 6, 7))
sketch9.addConstraint(Sketcher.Constraint("Perpendicular", 3, 8))
sketch9.addConstraint(Sketcher.Constraint("Perpendicular", 8, 9))
sketch9.addConstraint(Sketcher.Constraint("Perpendicular", 9, 10))
sketch9.addConstraint(Sketcher.Constraint("Perpendicular", 10, 11))
sketch9.addConstraint(Sketcher.Constraint("Vertical", 0, 2, 8, 2))
sketch9.addConstraint(Sketcher.Constraint("Vertical", 1, 2, 9, 2))
sketch9.addConstraint(Sketcher.Constraint("Vertical", 2, 2, 10, 2))
sketch9.addConstraint(Sketcher.Constraint("Equal", 3, 5))
sketch9.addConstraint(Sketcher.Constraint("Distance", 1, Q("6 mm")))
sketch9.addConstraint(Sketcher.Constraint("DistanceX", 2, 2, 1, 2, Q("83 mm")))
sketch9.addConstraint(Sketcher.Constraint("DistanceX", 6, 2, 5, 2, Q("83 mm")))
sketch9.addConstraint(Sketcher.Constraint("DistanceY", 0, 2, 8, 2, Q("219 mm")))
sketch9.addConstraint(Sketcher.Constraint("DistanceY", 2, 2, 1, 2, Q("97.5 mm")))
sketch9.addConstraint(Sketcher.Constraint("DistanceY", 6, 2, 5, 2, Q("105.5 mm")))
sketch9.addConstraint(Sketcher.Constraint("DistanceY", 0, 2, 4, 2, Q("113.4103 mm")))
sketch9.addConstraint(Sketcher.Constraint("DistanceX", -1, 1, 4, 2, Q("89.142209 mm")))
sketch9.addConstraint(Sketcher.Constraint("DistanceX", 4, 2, 0, 2, Q("0.073419 mm")))
sketch9.addConstraint(Sketcher.Constraint("DistanceY", -1, 1, 0, 2, Q("111.444645 mm")))
pad5 = body.newObject("PartDesign::Pad", "Pad004")
pad5.Profile = sketch9
pad5.Length = 1.5
pad5.Reversed = True

sketch10 = body.newObject("Sketcher::SketchObject", "Sketch009")
sketch10.AttachmentSupport = (doc.getObject("YZ_Plane"), [""])
sketch10.MapMode = "FlatFace"
sketch10.addGeometry(Part.LineSegment(V(89, 10, 0), V(6, 108, 0)), False)
sketch10.addGeometry(Part.LineSegment(V(6, 108, 0), V(11, 111, 0)), False)
sketch10.addGeometry(Part.LineSegment(V(11, 111, 0), V(94, 14, 0)), False)
sketch10.addGeometry(Part.LineSegment(V(94, 14, 0), V(89, 10, 0)), False)
sketch10.addGeometry(Part.LineSegment(V(89, 116, 0), V(6, 221, 0)), False)
sketch10.addGeometry(Part.LineSegment(V(6, 221, 0), V(11, 225, 0)), False)
sketch10.addGeometry(Part.LineSegment(V(11, 225, 0), V(94, 119, 0)), False)
sketch10.addGeometry(Part.LineSegment(V(94, 119, 0), V(89, 116, 0)), False)
sketch10.addGeometry(Part.LineSegment(V(89, 229, 0), V(6, 327, 0)), False)
sketch10.addGeometry(Part.LineSegment(V(6, 327, 0), V(11, 330, 0)), False)
sketch10.addGeometry(Part.LineSegment(V(11, 330, 0), V(94, 233, 0)), False)
sketch10.addGeometry(Part.LineSegment(V(94, 233, 0), V(89, 229, 0)), False)
sketch10.addConstraint(Sketcher.Constraint("Coincident", 0, 2, 1, 1))
sketch10.addConstraint(Sketcher.Constraint("Coincident", 1, 2, 2, 1))
sketch10.addConstraint(Sketcher.Constraint("Coincident", 2, 2, 3, 1))
sketch10.addConstraint(Sketcher.Constraint("Coincident", 3, 2, 0, 1))
sketch10.addConstraint(Sketcher.Constraint("Coincident", 4, 2, 5, 1))
sketch10.addConstraint(Sketcher.Constraint("Coincident", 5, 2, 6, 1))
sketch10.addConstraint(Sketcher.Constraint("Coincident", 6, 2, 7, 1))
sketch10.addConstraint(Sketcher.Constraint("Coincident", 7, 2, 4, 1))
sketch10.addConstraint(Sketcher.Constraint("Coincident", 8, 2, 9, 1))
sketch10.addConstraint(Sketcher.Constraint("Coincident", 9, 2, 10, 1))
sketch10.addConstraint(Sketcher.Constraint("Coincident", 10, 2, 11, 1))
sketch10.addConstraint(Sketcher.Constraint("Coincident", 11, 2, 8, 1))
sketch10.addConstraint(Sketcher.Constraint("Perpendicular", 0, 1))
sketch10.addConstraint(Sketcher.Constraint("Perpendicular", 1, 2))
sketch10.addConstraint(Sketcher.Constraint("Perpendicular", 2, 3))
sketch10.addConstraint(Sketcher.Constraint("Perpendicular", 4, 5))
sketch10.addConstraint(Sketcher.Constraint("Perpendicular", 5, 6))
sketch10.addConstraint(Sketcher.Constraint("Perpendicular", 6, 7))
sketch10.addConstraint(Sketcher.Constraint("Perpendicular", 3, 8))
sketch10.addConstraint(Sketcher.Constraint("Perpendicular", 8, 9))
sketch10.addConstraint(Sketcher.Constraint("Perpendicular", 9, 10))
sketch10.addConstraint(Sketcher.Constraint("Perpendicular", 10, 11))
sketch10.addConstraint(Sketcher.Constraint("Vertical", 0, 2, 8, 2))
sketch10.addConstraint(Sketcher.Constraint("Vertical", 1, 2, 9, 2))
sketch10.addConstraint(Sketcher.Constraint("Vertical", 2, 2, 10, 2))
sketch10.addConstraint(Sketcher.Constraint("Equal", 3, 5))
sketch10.addConstraint(Sketcher.Constraint("Distance", 1, Q("6 mm")))
sketch10.addConstraint(Sketcher.Constraint("DistanceX", 1, 2, 2, 2, Q("83 mm")))
sketch10.addConstraint(Sketcher.Constraint("DistanceX", 5, 2, 6, 2, Q("83 mm")))
sketch10.addConstraint(Sketcher.Constraint("DistanceY", 0, 2, 8, 2, Q("219 mm")))
sketch10.addConstraint(Sketcher.Constraint("DistanceY", 2, 2, 1, 2, Q("97.5 mm")))
sketch10.addConstraint(Sketcher.Constraint("DistanceY", 6, 2, 5, 2, Q("105.5 mm")))
sketch10.addConstraint(Sketcher.Constraint("DistanceY", 0, 2, 4, 2, Q("113.5897 mm")))
sketch10.addConstraint(Sketcher.Constraint("DistanceX", -1, 1, 4, 2, Q("6.142209 mm")))
sketch10.addConstraint(Sketcher.Constraint("DistanceX", 4, 2, 0, 2, Q("0.073419 mm")))
sketch10.addConstraint(Sketcher.Constraint("DistanceY", -1, 1, 0, 2, Q("107.555355 mm")))
pad6 = body.newObject("PartDesign::Pad", "Pad005")
pad6.Profile = sketch10
pad6.Length = 1.5
pad6.Reversed = True

sketch11 = body.newObject("Sketcher::SketchObject", "Sketch010")
sketch11.AttachmentSupport = (doc.getObject("YZ_Plane"), [""])
sketch11.MapMode = "FlatFace"
sketch11.addGeometry(Part.LineSegment(V(92, 4, 0), V(8, 4, 0)), False)
sketch11.addGeometry(Part.LineSegment(V(8, 4, 0), V(8, 12, 0)), False)
sketch11.addGeometry(Part.LineSegment(V(8, 12, 0), V(92, 12, 0)), False)
sketch11.addGeometry(Part.LineSegment(V(92, 12, 0), V(92, 4, 0)), False)
sketch11.addGeometry(Part.LineSegment(V(92, 110, 0), V(8, 110, 0)), False)
sketch11.addGeometry(Part.LineSegment(V(8, 110, 0), V(8, 118, 0)), False)
sketch11.addGeometry(Part.LineSegment(V(8, 118, 0), V(92, 118, 0)), False)
sketch11.addGeometry(Part.LineSegment(V(92, 118, 0), V(92, 110, 0)), False)
sketch11.addGeometry(Part.LineSegment(V(92, 223, 0), V(8, 223, 0)), False)
sketch11.addGeometry(Part.LineSegment(V(8, 223, 0), V(8, 231, 0)), False)
sketch11.addGeometry(Part.LineSegment(V(8, 231, 0), V(92, 231, 0)), False)
sketch11.addGeometry(Part.LineSegment(V(92, 231, 0), V(92, 223, 0)), False)
sketch11.addGeometry(Part.LineSegment(V(92, 328, 0), V(8, 328, 0)), False)
sketch11.addGeometry(Part.LineSegment(V(8, 328, 0), V(8, 336, 0)), False)
sketch11.addGeometry(Part.LineSegment(V(8, 336, 0), V(92, 336, 0)), False)
sketch11.addGeometry(Part.LineSegment(V(92, 336, 0), V(92, 328, 0)), False)
sketch11.addConstraint(Sketcher.Constraint("Coincident", 0, 2, 1, 1))
sketch11.addConstraint(Sketcher.Constraint("Coincident", 1, 2, 2, 1))
sketch11.addConstraint(Sketcher.Constraint("Coincident", 2, 2, 3, 1))
sketch11.addConstraint(Sketcher.Constraint("Coincident", 3, 2, 0, 1))
sketch11.addConstraint(Sketcher.Constraint("Coincident", 4, 2, 5, 1))
sketch11.addConstraint(Sketcher.Constraint("Coincident", 5, 2, 6, 1))
sketch11.addConstraint(Sketcher.Constraint("Coincident", 6, 2, 7, 1))
sketch11.addConstraint(Sketcher.Constraint("Coincident", 7, 2, 4, 1))
sketch11.addConstraint(Sketcher.Constraint("Coincident", 8, 2, 9, 1))
sketch11.addConstraint(Sketcher.Constraint("Coincident", 9, 2, 10, 1))
sketch11.addConstraint(Sketcher.Constraint("Coincident", 10, 2, 11, 1))
sketch11.addConstraint(Sketcher.Constraint("Coincident", 11, 2, 8, 1))
sketch11.addConstraint(Sketcher.Constraint("Coincident", 12, 2, 13, 1))
sketch11.addConstraint(Sketcher.Constraint("Coincident", 13, 2, 14, 1))
sketch11.addConstraint(Sketcher.Constraint("Coincident", 14, 2, 15, 1))
sketch11.addConstraint(Sketcher.Constraint("Coincident", 15, 2, 12, 1))
sketch11.addConstraint(Sketcher.Constraint("Horizontal", 0))
sketch11.addConstraint(Sketcher.Constraint("Vertical", 1))
sketch11.addConstraint(Sketcher.Constraint("Horizontal", 2))
sketch11.addConstraint(Sketcher.Constraint("Vertical", 3))
sketch11.addConstraint(Sketcher.Constraint("Horizontal", 4))
sketch11.addConstraint(Sketcher.Constraint("Vertical", 5))
sketch11.addConstraint(Sketcher.Constraint("Horizontal", 6))
sketch11.addConstraint(Sketcher.Constraint("Vertical", 7))
sketch11.addConstraint(Sketcher.Constraint("Horizontal", 8))
sketch11.addConstraint(Sketcher.Constraint("Vertical", 9))
sketch11.addConstraint(Sketcher.Constraint("Horizontal", 10))
sketch11.addConstraint(Sketcher.Constraint("Vertical", 11))
sketch11.addConstraint(Sketcher.Constraint("Horizontal", 12))
sketch11.addConstraint(Sketcher.Constraint("Vertical", 13))
sketch11.addConstraint(Sketcher.Constraint("Horizontal", 14))
sketch11.addConstraint(Sketcher.Constraint("Vertical", 15))
sketch11.addConstraint(Sketcher.Constraint("Vertical", 1, 2, 4, 2))
sketch11.addConstraint(Sketcher.Constraint("Vertical", 3, 2, 6, 2))
sketch11.addConstraint(Sketcher.Constraint("Vertical", 5, 2, 8, 2))
sketch11.addConstraint(Sketcher.Constraint("Vertical", 7, 2, 10, 2))
sketch11.addConstraint(Sketcher.Constraint("Vertical", 9, 2, 12, 2))
sketch11.addConstraint(Sketcher.Constraint("Vertical", 11, 2, 14, 2))
sketch11.addConstraint(Sketcher.Constraint("Equal", 3, 5))
sketch11.addConstraint(Sketcher.Constraint("Equal", 7, 9))
sketch11.addConstraint(Sketcher.Constraint("Equal", 11, 13))
sketch11.addConstraint(Sketcher.Constraint("DistanceX", 0, 2, 0, 1, Q("83 mm")))
sketch11.addConstraint(Sketcher.Constraint("DistanceY", 1, 1, 1, 2, Q("8 mm")))
sketch11.addConstraint(Sketcher.Constraint("DistanceY", -1, 1, 0, 2, Q("4 mm")))
sketch11.addConstraint(Sketcher.Constraint("DistanceY", -1, 1, 8, 2, Q("223 mm")))
sketch11.addConstraint(Sketcher.Constraint("DistanceY", 5, 2, 12, 2, Q("211 mm")))
sketch11.addConstraint(Sketcher.Constraint("DistanceX", -1, 1, 0, 2, Q("8.5 mm")))
sketch11.addConstraint(Sketcher.Constraint("DistanceY", -1, 1, 4, 2, Q("109.5 mm")))
pad7 = body.newObject("PartDesign::Pad", "Pad006")
pad7.Profile = sketch11
pad7.Length = 1.5
pad7.Reversed = True

doc.recompute()
